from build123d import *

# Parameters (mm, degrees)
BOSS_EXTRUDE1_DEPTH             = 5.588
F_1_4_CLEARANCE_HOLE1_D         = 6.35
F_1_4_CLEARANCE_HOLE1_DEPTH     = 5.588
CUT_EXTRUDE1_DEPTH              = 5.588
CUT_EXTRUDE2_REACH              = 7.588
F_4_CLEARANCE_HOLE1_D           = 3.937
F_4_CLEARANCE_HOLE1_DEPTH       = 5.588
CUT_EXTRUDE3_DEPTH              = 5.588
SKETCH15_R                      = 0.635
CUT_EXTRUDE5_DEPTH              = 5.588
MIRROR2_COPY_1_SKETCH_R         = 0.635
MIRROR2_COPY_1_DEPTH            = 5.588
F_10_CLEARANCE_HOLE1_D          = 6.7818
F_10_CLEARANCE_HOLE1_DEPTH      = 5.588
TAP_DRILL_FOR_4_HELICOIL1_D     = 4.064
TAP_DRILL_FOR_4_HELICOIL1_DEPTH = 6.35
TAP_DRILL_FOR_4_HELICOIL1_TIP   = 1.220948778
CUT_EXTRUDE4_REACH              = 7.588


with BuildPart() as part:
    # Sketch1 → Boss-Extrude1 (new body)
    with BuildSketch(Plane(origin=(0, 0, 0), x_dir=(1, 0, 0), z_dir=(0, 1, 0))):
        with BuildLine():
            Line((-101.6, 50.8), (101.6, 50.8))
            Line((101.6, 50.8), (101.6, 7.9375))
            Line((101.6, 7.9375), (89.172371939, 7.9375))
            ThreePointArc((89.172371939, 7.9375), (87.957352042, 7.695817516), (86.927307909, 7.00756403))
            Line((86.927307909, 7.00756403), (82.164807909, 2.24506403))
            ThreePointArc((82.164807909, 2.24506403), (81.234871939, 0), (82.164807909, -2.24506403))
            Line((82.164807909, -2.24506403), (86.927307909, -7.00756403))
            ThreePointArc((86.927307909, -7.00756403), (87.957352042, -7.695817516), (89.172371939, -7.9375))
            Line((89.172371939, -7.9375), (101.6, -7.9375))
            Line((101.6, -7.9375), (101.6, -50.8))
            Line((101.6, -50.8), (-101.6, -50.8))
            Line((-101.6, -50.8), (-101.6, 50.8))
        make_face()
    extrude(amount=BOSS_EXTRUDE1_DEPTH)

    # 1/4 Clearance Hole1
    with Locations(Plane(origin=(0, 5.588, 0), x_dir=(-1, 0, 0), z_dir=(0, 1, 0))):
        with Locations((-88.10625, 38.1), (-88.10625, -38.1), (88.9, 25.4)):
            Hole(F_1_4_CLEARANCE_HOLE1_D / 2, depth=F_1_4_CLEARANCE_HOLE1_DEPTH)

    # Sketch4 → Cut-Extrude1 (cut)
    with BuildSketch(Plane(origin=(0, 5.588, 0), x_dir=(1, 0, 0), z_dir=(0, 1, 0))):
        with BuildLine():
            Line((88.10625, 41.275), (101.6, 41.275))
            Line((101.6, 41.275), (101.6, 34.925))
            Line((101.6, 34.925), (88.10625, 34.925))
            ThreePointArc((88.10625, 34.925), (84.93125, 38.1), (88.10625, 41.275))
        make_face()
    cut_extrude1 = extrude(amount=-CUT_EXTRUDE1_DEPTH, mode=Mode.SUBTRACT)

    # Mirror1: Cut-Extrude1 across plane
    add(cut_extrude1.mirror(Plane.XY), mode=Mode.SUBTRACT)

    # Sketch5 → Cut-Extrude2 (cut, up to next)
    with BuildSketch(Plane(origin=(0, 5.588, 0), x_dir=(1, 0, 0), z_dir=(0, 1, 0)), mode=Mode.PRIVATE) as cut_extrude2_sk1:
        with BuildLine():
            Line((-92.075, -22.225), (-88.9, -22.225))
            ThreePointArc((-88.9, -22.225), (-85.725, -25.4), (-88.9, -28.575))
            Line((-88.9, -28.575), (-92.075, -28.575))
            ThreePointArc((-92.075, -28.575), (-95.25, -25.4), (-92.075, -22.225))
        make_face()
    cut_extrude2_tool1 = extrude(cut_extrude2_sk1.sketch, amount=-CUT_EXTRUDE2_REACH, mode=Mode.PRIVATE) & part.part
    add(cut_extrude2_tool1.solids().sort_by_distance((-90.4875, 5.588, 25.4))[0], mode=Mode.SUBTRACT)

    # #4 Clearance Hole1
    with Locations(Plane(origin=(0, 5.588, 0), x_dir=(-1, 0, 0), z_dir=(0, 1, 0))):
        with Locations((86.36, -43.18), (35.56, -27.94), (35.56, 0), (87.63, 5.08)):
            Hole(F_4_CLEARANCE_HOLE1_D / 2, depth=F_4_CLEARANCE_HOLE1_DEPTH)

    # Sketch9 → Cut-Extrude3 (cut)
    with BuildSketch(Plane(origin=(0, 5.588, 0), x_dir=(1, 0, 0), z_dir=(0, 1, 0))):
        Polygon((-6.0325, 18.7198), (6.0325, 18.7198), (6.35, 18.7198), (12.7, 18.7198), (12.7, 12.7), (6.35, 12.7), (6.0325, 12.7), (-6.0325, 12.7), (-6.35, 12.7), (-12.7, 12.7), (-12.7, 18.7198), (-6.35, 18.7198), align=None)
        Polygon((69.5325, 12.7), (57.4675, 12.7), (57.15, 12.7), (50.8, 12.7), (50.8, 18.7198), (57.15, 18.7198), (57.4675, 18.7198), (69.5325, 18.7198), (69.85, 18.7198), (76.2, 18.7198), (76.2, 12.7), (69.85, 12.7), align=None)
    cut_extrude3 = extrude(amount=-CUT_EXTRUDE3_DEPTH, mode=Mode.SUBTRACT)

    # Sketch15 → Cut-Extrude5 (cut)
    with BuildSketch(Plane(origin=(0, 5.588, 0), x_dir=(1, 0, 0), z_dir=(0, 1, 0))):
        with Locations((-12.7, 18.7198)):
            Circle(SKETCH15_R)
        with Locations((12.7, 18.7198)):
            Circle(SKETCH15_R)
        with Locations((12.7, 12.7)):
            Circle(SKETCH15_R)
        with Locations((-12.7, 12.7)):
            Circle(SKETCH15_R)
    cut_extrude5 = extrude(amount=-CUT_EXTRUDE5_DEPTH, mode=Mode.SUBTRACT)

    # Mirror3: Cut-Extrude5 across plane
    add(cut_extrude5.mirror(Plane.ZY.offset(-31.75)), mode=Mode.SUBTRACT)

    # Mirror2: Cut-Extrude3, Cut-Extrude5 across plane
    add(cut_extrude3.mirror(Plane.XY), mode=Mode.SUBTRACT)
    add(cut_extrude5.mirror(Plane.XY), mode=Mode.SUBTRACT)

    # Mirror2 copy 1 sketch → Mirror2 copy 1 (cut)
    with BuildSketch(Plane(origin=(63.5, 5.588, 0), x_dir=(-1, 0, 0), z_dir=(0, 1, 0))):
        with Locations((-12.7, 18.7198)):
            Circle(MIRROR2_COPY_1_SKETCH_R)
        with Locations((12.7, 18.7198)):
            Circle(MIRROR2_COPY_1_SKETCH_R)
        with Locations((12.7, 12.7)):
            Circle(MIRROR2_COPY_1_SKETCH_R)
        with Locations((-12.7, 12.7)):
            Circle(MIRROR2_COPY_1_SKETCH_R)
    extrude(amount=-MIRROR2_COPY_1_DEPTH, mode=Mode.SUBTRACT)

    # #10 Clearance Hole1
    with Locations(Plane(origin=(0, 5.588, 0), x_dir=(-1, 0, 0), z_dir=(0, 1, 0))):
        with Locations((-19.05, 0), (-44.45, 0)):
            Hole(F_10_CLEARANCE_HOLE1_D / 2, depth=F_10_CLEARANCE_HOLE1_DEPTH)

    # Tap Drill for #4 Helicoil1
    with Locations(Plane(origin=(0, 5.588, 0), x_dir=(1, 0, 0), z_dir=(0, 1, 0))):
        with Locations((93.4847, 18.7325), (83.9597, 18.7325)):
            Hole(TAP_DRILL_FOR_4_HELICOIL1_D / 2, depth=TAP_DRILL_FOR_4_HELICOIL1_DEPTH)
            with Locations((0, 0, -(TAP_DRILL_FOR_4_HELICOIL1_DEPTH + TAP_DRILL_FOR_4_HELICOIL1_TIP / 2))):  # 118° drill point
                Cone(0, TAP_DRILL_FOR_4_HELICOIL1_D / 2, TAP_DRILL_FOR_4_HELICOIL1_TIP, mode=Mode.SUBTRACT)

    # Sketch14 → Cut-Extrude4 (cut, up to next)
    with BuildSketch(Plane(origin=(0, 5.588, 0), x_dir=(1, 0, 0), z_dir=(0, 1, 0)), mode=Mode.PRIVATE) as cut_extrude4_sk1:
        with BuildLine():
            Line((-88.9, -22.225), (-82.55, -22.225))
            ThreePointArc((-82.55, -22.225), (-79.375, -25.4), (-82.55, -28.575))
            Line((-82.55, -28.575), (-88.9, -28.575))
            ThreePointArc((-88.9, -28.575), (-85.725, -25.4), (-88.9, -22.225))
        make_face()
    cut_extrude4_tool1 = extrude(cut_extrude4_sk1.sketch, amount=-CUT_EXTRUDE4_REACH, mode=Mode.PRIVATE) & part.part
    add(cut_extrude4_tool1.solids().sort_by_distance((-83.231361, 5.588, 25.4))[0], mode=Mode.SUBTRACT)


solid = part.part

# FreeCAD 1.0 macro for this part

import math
import FreeCAD as App
import Part
import Sketcher
Q = App.Units.Quantity

doc = App.newDocument("Part")
body = doc.addObject("PartDesign::Body", "Body")

# Sketch on XZ plane
sketch1 = body.newObject("Sketcher::SketchObject", "Sketch")
sketch1.AttachmentSupport = (doc.getObject("XZ_Plane"), [""])
sketch1.MapMode = "FlatFace"
sketch1.addGeometry([
    Part.LineSegment(App.Vector(101.6, -50.8, 0), App.Vector(-101.6, -50.8, 0)),  # 0
    Part.LineSegment(App.Vector(-101.6, -50.8, 0), App.Vector(-101.6, 50.8, 0)),  # 1
    Part.LineSegment(App.Vector(-101.6, 50.8, 0), App.Vector(101.6, 50.8, 0)),  # 2
    Part.LineSegment(App.Vector(101.6, 50.8, 0), App.Vector(101.6, 7.9375, 0)),  # 3
    Part.LineSegment(App.Vector(101.6, 7.9375, 0), App.Vector(89.172372, 7.9375, 0)),  # 4
    Part.ArcOfCircle(Part.Circle(App.Vector(89.172372, 4.7625, 0), App.Vector(0, 0, 1), 3.175), math.radians(90), math.radians(135)),  # 5
    Part.LineSegment(App.Vector(86.927308, 7.007564, 0), App.Vector(82.164808, 2.245064, 0)),  # 6
    Part.ArcOfCircle(Part.Circle(App.Vector(84.409872, 0, 0), App.Vector(0, 0, 1), 3.175), math.radians(135), math.radians(225)),  # 7
    Part.LineSegment(App.Vector(82.164808, -2.245064, 0), App.Vector(86.927308, -7.007564, 0)),  # 8
    Part.ArcOfCircle(Part.Circle(App.Vector(89.172372, -4.7625, 0), App.Vector(0, 0, 1), 3.175), math.radians(-135), math.radians(-90)),  # 9
    Part.LineSegment(App.Vector(89.172372, -7.9375, 0), App.Vector(101.6, -7.9375, 0)),  # 10
    Part.LineSegment(App.Vector(101.6, -7.9375, 0), App.Vector(101.6, -50.8, 0)),  # 11
], False)
sketch1.addConstraint([
    Sketcher.Constraint("Coincident", 0, 2, 1, 1),
    Sketcher.Constraint("Coincident", 1, 2, 2, 1),
    Sketcher.Constraint("Coincident", 2, 2, 3, 1),
    Sketcher.Constraint("Coincident", 3, 2, 4, 1),
    Sketcher.Constraint("Tangent", 4, 2, 5, 1),
    Sketcher.Constraint("Tangent", 5, 2, 6, 1),
    Sketcher.Constraint("Tangent", 6, 2, 7, 1),
    Sketcher.Constraint("Tangent", 7, 2, 8, 1),
    Sketcher.Constraint("Tangent", 8, 2, 9, 1),
    Sketcher.Constraint("Tangent", 9, 2, 10, 1),
    Sketcher.Constraint("Coincident", 10, 2, 11, 1),
    Sketcher.Constraint("Coincident", 11, 2, 0, 1),
    Sketcher.Constraint("Horizontal", 0),
    Sketcher.Constraint("Vertical", 1),
    Sketcher.Constraint("Horizontal", 2),
    Sketcher.Constraint("Vertical", 3),
    Sketcher.Constraint("Horizontal", 4),
    Sketcher.Constraint("Horizontal", 10),
    Sketcher.Constraint("Vertical", 11),
    Sketcher.Constraint("Equal", 5, 7),
    Sketcher.Constraint("Equal", 7, 9),
    Sketcher.Constraint("Symmetric", 0, 2, 2, 2, -1, 1),
    Sketcher.Constraint("Symmetric", 5, 3, 9, 3, -1),
    Sketcher.Constraint("PointOnObject", 7, 3, -1),
    Sketcher.Constraint("Perpendicular", 6, 8),
    Sketcher.Constraint("Vertical", 3, 2, 10, 2),
    Sketcher.Constraint("DistanceX", 0, 2, 0, 1, Q("8 in")),
    Sketcher.Constraint("DistanceY", 1, 1, 1, 2, Q("4 in")),
    Sketcher.Constraint("Radius", 5, Q("0.125 in")),
    Sketcher.Constraint("DistanceY", 9, 3, 3, 2, Q("0.5 in")),
    Sketcher.Constraint("DistanceX", 4, 2, 4, 1, 12.427628),
])
pad1 = body.newObject("PartDesign::Pad", "Pad")
pad1.Profile = sketch1
pad1.Length = Q("0.22 in")
pad1.Reversed = True

# Sketch on XZ plane
sketch2 = body.newObject("Sketcher::SketchObject", "Sketch001")
sketch2.AttachmentSupport = (doc.getObject("XZ_Plane"), [""])
sketch2.MapMode = "FlatFace"
sketch2.AttachmentOffset = App.Placement(App.Vector(0, 0, -0.22 * 25.4), App.Rotation())
sketch2.addGeometry([
    Part.Circle(App.Vector(88.10625, 38.1, 0), App.Vector(0, 0, 1), 3.175),
    Part.Circle(App.Vector(88.10625, -38.1, 0), App.Vector(0, 0, 1), 3.175),
    Part.Circle(App.Vector(-88.9, 25.4, 0), App.Vector(0, 0, 1), 3.175),
], False)
sketch2.addConstraint([
    Sketcher.Constraint("Equal", 0, 1),
    Sketcher.Constraint("Equal", 1, 2),
    Sketcher.Constraint("Symmetric", 0, 3, 1, 3, -1),
    Sketcher.Constraint("Diameter", 0, Q("0.25 in")),
    Sketcher.Constraint("DistanceY", -1, 1, 2, 3, Q("1 in")),
    Sketcher.Constraint("DistanceY", 1, 3, 0, 3, Q("3 in")),
    Sketcher.Constraint("DistanceX", 2, 3, -1, 1, Q("3.5 in")),
    Sketcher.Constraint("DistanceX", -1, 1, 0, 3, Q("3.46875 in")),
])
doc.recompute()
hole = body.newObject("PartDesign::Hole", "Hole")
hole.Profile = sketch2
hole.ThreadType = "None"
hole.Diameter = Q("0.25 in")
hole.DepthType = "Dimension"
hole.Depth = Q("0.22 in")
hole.DrillPoint = "Flat"
hole.Reversed = True

# Sketch on XZ plane
sketch3 = body.newObject("Sketcher::SketchObject", "Sketch002")
sketch3.AttachmentSupport = (doc.getObject("XZ_Plane"), [""])
sketch3.MapMode = "FlatFace"
sketch3.AttachmentOffset = App.Placement(App.Vector(0, 0, -0.22 * 25.4), App.Rotation())
sketch3.addGeometry([
    Part.LineSegment(App.Vector(101.6, -41.275, 0), App.Vector(88.10625, -41.275, 0)),
    Part.ArcOfCircle(Part.Circle(App.Vector(88.10625, -38.1, 0), App.Vector(0, 0, 1), 3.175), math.radians(90), math.radians(270)),
    Part.LineSegment(App.Vector(88.10625, -34.925, 0), App.Vector(101.6, -34.925, 0)),
    Part.LineSegment(App.Vector(101.6, -34.925, 0), App.Vector(101.6, -41.275, 0)),
], False)
sketch3.addConstraint([
    Sketcher.Constraint("Tangent", 0, 2, 1, 2),
    Sketcher.Constraint("Tangent", 1, 1, 2, 1),
    Sketcher.Constraint("Coincident", 2, 2, 3, 1),
    Sketcher.Constraint("Coincident", 3, 2, 0, 1),
    Sketcher.Constraint("Horizontal", 0),
    Sketcher.Constraint("Horizontal", 2),
    Sketcher.Constraint("Vertical", 3),
    Sketcher.Constraint("DistanceX", -1, 1, 2, 2, Q("4 in")),
    Sketcher.Constraint("Radius", 1, Q("0.125 in")),
    Sketcher.Constraint("DistanceY", 1, 3, -1, 1, Q("1.5 in")),
    Sketcher.Constraint("DistanceX", 0, 2, 0, 1, Q("0.53125 in")),
])
pocket1 = body.newObject("PartDesign::Pocket", "Pocket")
pocket1.Profile = sketch3
pocket1.Length = Q("0.22 in")
pocket1.Reversed = True
doc.recompute()

mirrored = body.newObject("PartDesign::Mirrored", "Mirrored")
mirrored.Originals = [pocket1]
mirrored.MirrorPlane = (doc.getObject("XY_Plane"), [""])
body.Tip = mirrored

# Sketch on XZ plane
sketch4 = body.newObject("Sketcher::SketchObject", "Sketch003")
sketch4.AttachmentSupport = (doc.getObject("XZ_Plane"), [""])
sketch4.MapMode = "FlatFace"
sketch4.AttachmentOffset = App.Placement(App.Vector(0, 0, -0.22 * 25.4), App.Rotation())
sketch4.addGeometry([
    Part.LineSegment(App.Vector(-88.9, 22.225, 0), App.Vector(-92.075, 22.225, 0)),
    Part.ArcOfCircle(Part.Circle(App.Vector(-92.075, 25.4, 0), App.Vector(0, 0, 1), 3.175), math.radians(90), math.radians(270)),
    Part.LineSegment(App.Vector(-92.075, 28.575, 0), App.Vector(-88.9, 28.575, 0)),
    Part.ArcOfCircle(Part.Circle(App.Vector(-88.9, 25.4, 0), App.Vector(0, 0, 1), 3.175), math.radians(-90), math.radians(90)),
], False)
sketch4.addConstraint([
    Sketcher.Constraint("Tangent", 0, 2, 1, 2),
    Sketcher.Constraint("Tangent", 1, 1, 2, 1),
    Sketcher.Constraint("Tangent", 2, 2, 3, 2),
    Sketcher.Constraint("Tangent", 3, 1, 0, 1),
    Sketcher.Constraint("Horizontal", 0),
    Sketcher.Constraint("Horizontal", 2),
    Sketcher.Constraint("DistanceY", -1, 1, 1, 3, Q("1 in")),
    Sketcher.Constraint("Radius", 1, Q("0.125 in")),
    Sketcher.Constraint("DistanceX", 3, 3, -1, 1, Q("3.5 in")),
    Sketcher.Constraint("DistanceX", 0, 2, 0, 1, Q("0.125 in")),
])
pocket2 = body.newObject("PartDesign::Pocket", "Pocket001")
pocket2.Profile = sketch4
pocket2.Length = Q("0.22 in")
pocket2.Reversed = True

# Sketch on XZ plane
sketch5 = body.newObject("Sketcher::SketchObject", "Sketch004")
sketch5.AttachmentSupport = (doc.getObject("XZ_Plane"), [""])
sketch5.MapMode = "FlatFace"
sketch5.AttachmentOffset = App.Placement(App.Vector(0, 0, -0.22 * 25.4), App.Rotation())
sketch5.addGeometry([
    Part.Circle(App.Vector(-86.36, -43.18, 0), App.Vector(0, 0, 1), 1.9685),
    Part.Circle(App.Vector(-35.56, -27.94, 0), App.Vector(0, 0, 1), 1.9685),
    Part.Circle(App.Vector(-35.56, 0, 0), App.Vector(0, 0, 1), 1.9685),
    Part.Circle(App.Vector(-87.63, 5.08, 0), App.Vector(0, 0, 1), 1.9685),
], False)
sketch5.addConstraint([
    Sketcher.Constraint("Equal", 0, 1),
    Sketcher.Constraint("Equal", 1, 2),
    Sketcher.Constraint("Equal", 2, 3),
    Sketcher.Constraint("PointOnObject", 2, 3, -1),
    Sketcher.Constraint("Vertical", 1, 3, 2, 3),
    Sketcher.Constraint("Diameter", 0, Q("0.155 in")),
    Sketcher.Constraint("DistanceX", 0, 3, 1, 3, Q("2 in")),
    Sketcher.Constraint("DistanceX", 0, 3, -1, 1, Q("3.4 in")),
    Sketcher.Constraint("DistanceY", 0, 3, -1, 1, Q("1.7 in")),
    Sketcher.Constraint("DistanceY", 1, 3, -1, 1, Q("1.1 in")),
    Sketcher.Constraint("DistanceY", -1, 1, 3, 3, Q("0.2 in")),
    Sketcher.Constraint("DistanceX", 3, 3, -1, 1, Q("3.45 in")),
])
doc.recompute()
hole2 = body.newObject("PartDesign::Hole", "Hole001")
hole2.Profile = sketch5
hole2.ThreadType = "None"
hole2.Diameter = Q("0.155 in")
hole2.DepthType = "Dimension"
hole2.Depth = Q("0.22 in")
hole2.DrillPoint = "Flat"
hole2.Reversed = True

# Sketch on XZ plane
sketch6 = body.newObject("Sketcher::SketchObject", "Sketch005")
sketch6.AttachmentSupport = (doc.getObject("XZ_Plane"), [""])
sketch6.MapMode = "FlatFace"
sketch6.AttachmentOffset = App.Placement(App.Vector(0, 0, -0.22 * 25.4), App.Rotation())
sketch6.addGeometry([
    Part.LineSegment(App.Vector(12.7, -18.7198, 0), App.Vector(-12.7, -18.7198, 0)),  # 0
    Part.LineSegment(App.Vector(-12.7, -18.7198, 0), App.Vector(-12.7, -12.7, 0)),  # 1
    Part.LineSegment(App.Vector(-12.7, -12.7, 0), App.Vector(12.7, -12.7, 0)),  # 2
    Part.LineSegment(App.Vector(12.7, -12.7, 0), App.Vector(12.7, -18.7198, 0)),  # 3
    Part.LineSegment(App.Vector(50.8, -12.7, 0), App.Vector(76.2, -12.7, 0)),  # 4
    Part.LineSegment(App.Vector(76.2, -12.7, 0), App.Vector(76.2, -18.7198, 0)),  # 5
    Part.LineSegment(App.Vector(76.2, -18.7198, 0), App.Vector(50.8, -18.7198, 0)),  # 6
    Part.LineSegment(App.Vector(50.8, -18.7198, 0), App.Vector(50.8, -12.7, 0)),  # 7
], False)
sketch6.addConstraint([
    Sketcher.Constraint("Coincident", 0, 2, 1, 1),
    Sketcher.Constraint("Coincident", 1, 2, 2, 1),
    Sketcher.Constraint("Coincident", 2, 2, 3, 1),
    Sketcher.Constraint("Coincident", 3, 2, 0, 1),
    Sketcher.Constraint("Coincident", 4, 2, 5, 1),
    Sketcher.Constraint("Coincident", 5, 2, 6, 1),
    Sketcher.Constraint("Coincident", 6, 2, 7, 1),
    Sketcher.Constraint("Coincident", 7, 2, 4, 1),
    Sketcher.Constraint("Horizontal", 0),
    Sketcher.Constraint("Vertical", 1),
    Sketcher.Constraint("Horizontal", 2),
    Sketcher.Constraint("Vertical", 3),
    Sketcher.Constraint("Horizontal", 4),
    Sketcher.Constraint("Vertical", 5),
    Sketcher.Constraint("Horizontal", 6),
    Sketcher.Constraint("Vertical", 7),
    Sketcher.Constraint("Horizontal", 2, 2, 4, 2),
    Sketcher.Constraint("Horizontal", 3, 2, 5, 2),
    Sketcher.Constraint("Equal", 2, 4),
    Sketcher.Constraint("DistanceX", 0, 2, 0, 1, Q("1 in")),
    Sketcher.Constraint("DistanceX", -1, 1, 4, 2, Q("3 in")),
    Sketcher.Constraint("DistanceX", 0, 2, -1, 1, Q("0.5 in")),
    Sketcher.Constraint("DistanceY", 1, 2, -1, 1, Q("0.5 in")),
    Sketcher.Constraint("DistanceY", 1, 1, 1, 2, Q("0.237 in")),
])
pocket3 = body.newObject("PartDesign::Pocket", "Pocket002")
pocket3.Profile = sketch6
pocket3.Length = Q("0.22 in")
pocket3.Reversed = True

# Sketch on XZ plane
sketch7 = body.newObject("Sketcher::SketchObject", "Sketch006")
sketch7.AttachmentSupport = (doc.getObject("XZ_Plane"), [""])
sketch7.MapMode = "FlatFace"
sketch7.AttachmentOffset = App.Placement(App.Vector(0, 0, -0.22 * 25.4), App.Rotation())
sketch7.addGeometry([
    Part.Circle(App.Vector(-12.7, -18.7198, 0), App.Vector(0, 0, 1), 0.635),
    Part.Circle(App.Vector(12.7, -18.7198, 0), App.Vector(0, 0, 1), 0.635),
    Part.Circle(App.Vector(12.7, -12.7, 0), App.Vector(0, 0, 1), 0.635),
    Part.Circle(App.Vector(-12.7, -12.7, 0), App.Vector(0, 0, 1), 0.635),
], False)
sketch7.addConstraint([
    Sketcher.Constraint("Equal", 0, 1),
    Sketcher.Constraint("Equal", 1, 2),
    Sketcher.Constraint("Equal", 2, 3),
    Sketcher.Constraint("Symmetric", 0, 3, 1, 3, -2),
    Sketcher.Constraint("Symmetric", 2, 3, 3, 3, -2),
    Sketcher.Constraint("Vertical", 1, 3, 2, 3),
    Sketcher.Constraint("Diameter", 0, Q("0.05 in")),
    Sketcher.Constraint("DistanceX", 0, 3, 1, 3, Q("1 in")),
    Sketcher.Constraint("DistanceY", 2, 3, -1, 1, Q("0.5 in")),
    Sketcher.Constraint("DistanceY", 0, 3, -1, 1, Q("0.737 in")),
])
pocket4 = body.newObject("PartDesign::Pocket", "Pocket003")
pocket4.Profile = sketch7
pocket4.Length = Q("0.22 in")
pocket4.Reversed = True
doc.recompute()

datumplane = body.newObject("PartDesign::Plane", "DatumPlane")
datumplane.AttachmentSupport = (doc.getObject("YZ_Plane"), [""])
datumplane.MapMode = "FlatFace"
datumplane.AttachmentOffset = App.Placement(App.Vector(0, 0, 1.25 * 25.4), App.Rotation())
mirrored2 = body.newObject("PartDesign::Mirrored", "Mirrored001")
mirrored2.Originals = [pocket4]
mirrored2.MirrorPlane = (datumplane, [""])
body.Tip = mirrored2
doc.recompute()

mirrored3 = body.newObject("PartDesign::Mirrored", "Mirrored002")
mirrored3.Originals = [pocket3, pocket4]
mirrored3.MirrorPlane = (doc.getObject("XY_Plane"), [""])
body.Tip = mirrored3

# Sketch on XZ plane
sketch8 = body.newObject("Sketcher::SketchObject", "Sketch007")
sketch8.AttachmentSupport = (doc.getObject("XZ_Plane"), [""])
sketch8.MapMode = "FlatFace"
sketch8.AttachmentOffset = App.Placement(App.Vector(0, 0, -0.22 * 25.4), App.Rotation())
sketch8.addGeometry([
    Part.Circle(App.Vector(76.2, 18.7198, 0), App.Vector(0, 0, 1), 0.635),
    Part.Circle(App.Vector(50.8, 18.7198, 0), App.Vector(0, 0, 1), 0.635),
    Part.Circle(App.Vector(50.8, 12.7, 0), App.Vector(0, 0, 1), 0.635),
    Part.Circle(App.Vector(76.2, 12.7, 0), App.Vector(0, 0, 1), 0.635),
], False)
sketch8.addConstraint([
    Sketcher.Constraint("Equal", 0, 1),
    Sketcher.Constraint("Equal", 1, 2),
    Sketcher.Constraint("Equal", 2, 3),
    Sketcher.Constraint("Horizontal", 0, 3, 1, 3),
    Sketcher.Constraint("Horizontal", 2, 3, 3, 3),
    Sketcher.Constraint("Vertical", 1, 3, 2, 3),
    Sketcher.Constraint("Vertical", 0, 3, 3, 3),
    Sketcher.Constraint("Diameter", 0, Q("0.05 in")),
    Sketcher.Constraint("DistanceX", -1, 1, 0, 3, Q("3 in")),
    Sketcher.Constraint("DistanceX", -1, 1, 1, 3, Q("2 in")),
    Sketcher.Constraint("DistanceY", -1, 1, 2, 3, Q("0.5 in")),
    Sketcher.Constraint("DistanceY", -1, 1, 0, 3, Q("0.737 in")),
])
pocket5 = body.newObject("PartDesign::Pocket", "Pocket004")
pocket5.Profile = sketch8
pocket5.Length = Q("0.22 in")
pocket5.Reversed = True

# Sketch on XZ plane
sketch9 = body.newObject("Sketcher::SketchObject", "Sketch008")
sketch9.AttachmentSupport = (doc.getObject("XZ_Plane"), [""])
sketch9.MapMode = "FlatFace"
sketch9.AttachmentOffset = App.Placement(App.Vector(0, 0, -0.22 * 25.4), App.Rotation())
sketch9.addGeometry([
    Part.Circle(App.Vector(19.05, 0, 0), App.Vector(0, 0, 1), 3.3909),
    Part.Circle(App.Vector(44.45, 0, 0), App.Vector(0, 0, 1), 3.3909),
], False)
sketch9.addConstraint([
    Sketcher.Constraint("Equal", 0, 1),
    Sketcher.Constraint("PointOnObject", 0, 3, -1),
    Sketcher.Constraint("PointOnObject", 1, 3, -1),
    Sketcher.Constraint("Diameter", 0, Q("0.267 in")),
    Sketcher.Constraint("DistanceX", 0, 3, 1, 3, Q("1 in")),
    Sketcher.Constraint("DistanceX", -1, 1, 0, 3, Q("0.75 in")),
])
doc.recompute()
hole3 = body.newObject("PartDesign::Hole", "Hole002")
hole3.Profile = sketch9
hole3.ThreadType = "None"
hole3.Diameter = Q("0.267 in")
hole3.DepthType = "Dimension"
hole3.Depth = Q("0.22 in")
hole3.DrillPoint = "Flat"
hole3.Reversed = True

# Sketch on XZ plane
sketch10 = body.newObject("Sketcher::SketchObject", "Sketch009")
sketch10.AttachmentSupport = (doc.getObject("XZ_Plane"), [""])
sketch10.MapMode = "FlatFace"
sketch10.AttachmentOffset = App.Placement(App.Vector(0, 0, -0.22 * 25.4), App.Rotation())
sketch10.addGeometry([
    Part.Circle(App.Vector(93.4847, -18.7325, 0), App.Vector(0, 0, 1), 2.032),
    Part.Circle(App.Vector(83.9597, -18.7325, 0), App.Vector(0, 0, 1), 2.032),
], False)
sketch10.addConstraint([
    Sketcher.Constraint("Equal", 0, 1),
    Sketcher.Constraint("Horizontal", 0, 3, 1, 3),
    Sketcher.Constraint("Diameter", 0, Q("0.16 in")),
    Sketcher.Constraint("DistanceX", 1, 3, 0, 3, Q("0.375 in")),
    Sketcher.Constraint("DistanceX", -1, 1, 0, 3, Q("3.6805 in")),
    Sketcher.Constraint("DistanceY", 0, 3, -1, 1, Q("0.7375 in")),
])
doc.recompute()
hole4 = body.newObject("PartDesign::Hole", "Hole003")
hole4.Profile = sketch10
hole4.ThreadType = "None"
hole4.Diameter = Q("0.16 in")
hole4.DepthType = "Dimension"
hole4.Depth = Q("0.25 in")
hole4.DrillPoint = "Angled"
hole4.DrillPointAngle = 118
hole4.Reversed = True

# Sketch on XZ plane
sketch11 = body.newObject("Sketcher::SketchObject", "Sketch010")
sketch11.AttachmentSupport = (doc.getObject("XZ_Plane"), [""])
sketch11.MapMode = "FlatFace"
sketch11.AttachmentOffset = App.Placement(App.Vector(0, 0, -0.22 * 25.4), App.Rotation())
sketch11.addGeometry([
    Part.LineSegment(App.Vector(-82.55, 22.225, 0), App.Vector(-88.9, 22.225, 0)),
    Part.ArcOfCircle(Part.Circle(App.Vector(-88.9, 25.4, 0), App.Vector(0, 0, 1), 3.175), math.radians(-90), math.radians(90)),
    Part.LineSegment(App.Vector(-88.9, 28.575, 0), App.Vector(-82.55, 28.575, 0)),
    Part.ArcOfCircle(Part.Circle(App.Vector(-82.55, 25.4, 0), App.Vector(0, 0, 1), 3.175), math.radians(-90), math.radians(90)),
], False)
sketch11.addConstraint([
    Sketcher.Constraint("Tangent", 0, 2, 1, 1),
    Sketcher.Constraint("Tangent", 1, 2, 2, 1),
    Sketcher.Constraint("Tangent", 2, 2, 3, 2),
    Sketcher.Constraint("Tangent", 3, 1, 0, 1),
    Sketcher.Constraint("Horizontal", 0),
    Sketcher.Constraint("Horizontal", 2),
    Sketcher.Constraint("DistanceY", -1, 1, 1, 3, Q("1 in")),
    Sketcher.Constraint("Radius", 1, Q("0.125 in")),
    Sketcher.Constraint("DistanceX", 0, 2, 0, 1, Q("0.25 in")),
    Sketcher.Constraint("DistanceX", 1, 3, -1, 1, Q("3.5 in")),
])
pocket6 = body.newObject("PartDesign::Pocket", "Pocket005")
pocket6.Profile = sketch11
pocket6.Type = "UpToFirst"
pocket6.Reversed = True

doc.recompute()
